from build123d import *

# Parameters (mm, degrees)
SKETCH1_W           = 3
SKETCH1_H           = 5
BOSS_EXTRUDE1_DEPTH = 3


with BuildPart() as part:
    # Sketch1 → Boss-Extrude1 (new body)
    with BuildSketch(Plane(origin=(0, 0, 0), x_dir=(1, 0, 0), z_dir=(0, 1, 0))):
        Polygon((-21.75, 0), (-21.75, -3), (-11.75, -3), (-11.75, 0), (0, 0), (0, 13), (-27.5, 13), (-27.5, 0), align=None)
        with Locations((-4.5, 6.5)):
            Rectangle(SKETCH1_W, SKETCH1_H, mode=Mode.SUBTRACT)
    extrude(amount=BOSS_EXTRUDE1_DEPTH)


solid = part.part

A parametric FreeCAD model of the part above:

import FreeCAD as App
import Part
import Sketcher
Q = App.Units.Quantity


def add_polygon(sketch, points):
    """Adds a closed chain of lines whose ends are joined by coincident constraints."""
    first, n = sketch.GeometryCount, len(points)
    for a, b in zip(points, points[1:] + points[:1]):
        sketch.addGeometry(Part.LineSegment(App.Vector(*a, 0), App.Vector(*b, 0)), False)
    for i in range(n):
        sketch.addConstraint(Sketcher.Constraint("Coincident", first + i, 2, first + (i + 1) % n, 1))

doc = App.newDocument("Part")
params = doc.addObject("Spreadsheet::Sheet", "Params")
for row, (alias, value) in enumerate([
    ("sketch1_width", "10 mm"),
    ("sketch1_width2", "3 mm"),
    ("sketch1_height", "13 mm"),
    ("sketch1_height2", "5 mm"),
    ("sketch1_width3", "27.5 mm"),
    ("pad1_length", "3 mm"),
], start=1):
    params.set(f"A{row}", alias)
    params.set(f"B{row}", "=" + value)
    params.setAlias(f"B{row}", alias)

body = doc.addObject("PartDesign::Body", "Body")

# Sketch on XZ plane
sketch1 = doc.addObject("Sketcher::SketchObject", "Sketch")
body.addObject(sketch1)
sketch1.AttachmentSupport = (doc.XZ_Plane, [""])
sketch1.MapMode = "FlatFace"
add_polygon(sketch1, [(-21.8, 0), (-21.8, 3), (-11.8, 3), (-11.8, 0), (0, 0), (0, -13), (-27.5, -13), (-27.5, 0)])  # lines 0-7
add_polygon(sketch1, [(-3, -4), (-6, -4), (-6, -9), (-3, -9)])  # lines 8-11
sketch1.addConstraint(Sketcher.Constraint("Vertical", 0))
sketch1.addConstraint(Sketcher.Constraint("Horizontal", 1))
sketch1.addConstraint(Sketcher.Constraint("Vertical", 2))
sketch1.addConstraint(Sketcher.Constraint("Horizontal", 3))
sketch1.addConstraint(Sketcher.Constraint("Vertical", 4))
sketch1.addConstraint(Sketcher.Constraint("Horizontal", 5))
sketch1.addConstraint(Sketcher.Constraint("Vertical", 6))
sketch1.addConstraint(Sketcher.Constraint("Horizontal", 7))
sketch1.addConstraint(Sketcher.Constraint("Horizontal", 8))
sketch1.addConstraint(Sketcher.Constraint("Vertical", 9))
sketch1.addConstraint(Sketcher.Constraint("Horizontal", 10))
sketch1.addConstraint(Sketcher.Constraint("Vertical", 11))
sketch1.addConstraint(Sketcher.Constraint("Coincident", 3, 2, -1, 1))
sketch1.addConstraint(Sketcher.Constraint("PointOnObject", 6, 2, -1))
sketch1.addConstraint(Sketcher.Constraint("Equal", 10, 0))
sketch1.addConstraint(Sketcher.Constraint("DistanceX", 1, 1, 1, 2, Q("10 mm")))
sketch1.addConstraint(Sketcher.Constraint("DistanceX", 8, 2, 8, 1, Q("3 mm")))
sketch1.addConstraint(Sketcher.Constraint("DistanceY", 4, 2, 4, 1, Q("13 mm")))
sketch1.addConstraint(Sketcher.Constraint("DistanceY", 9, 2, 9, 1, Q("5 mm")))
sketch1.addConstraint(Sketcher.Constraint("DistanceX", 5, 2, 5, 1, Q("27.5 mm")))
sketch1.addConstraint(Sketcher.Constraint("DistanceX", 8, 2, -1, 1, Q("6 mm")))
sketch1.addConstraint(Sketcher.Constraint("DistanceY", 8, 2, -1, 1, Q("4 mm")))
sketch1.addConstraint(Sketcher.Constraint("DistanceX", 3, 1, 3, 2, Q("11.75 mm")))
sketch1.setExpression("Constraints[27]", "Params.sketch1_width")
sketch1.setExpression("Constraints[28]", "Params.sketch1_width2")
sketch1.setExpression("Constraints[29]", "Params.sketch1_height")
sketch1.setExpression("Constraints[30]", "Params.sketch1_height2")
sketch1.setExpression("Constraints[31]", "Params.sketch1_width3")
pad1 = doc.addObject("PartDesign::Pad", "Pad")
body.addObject(pad1)
pad1.Profile = sketch1
pad1.setExpression("Length", "Params.pad1_length")
pad1.Reversed = True

doc.recompute()
